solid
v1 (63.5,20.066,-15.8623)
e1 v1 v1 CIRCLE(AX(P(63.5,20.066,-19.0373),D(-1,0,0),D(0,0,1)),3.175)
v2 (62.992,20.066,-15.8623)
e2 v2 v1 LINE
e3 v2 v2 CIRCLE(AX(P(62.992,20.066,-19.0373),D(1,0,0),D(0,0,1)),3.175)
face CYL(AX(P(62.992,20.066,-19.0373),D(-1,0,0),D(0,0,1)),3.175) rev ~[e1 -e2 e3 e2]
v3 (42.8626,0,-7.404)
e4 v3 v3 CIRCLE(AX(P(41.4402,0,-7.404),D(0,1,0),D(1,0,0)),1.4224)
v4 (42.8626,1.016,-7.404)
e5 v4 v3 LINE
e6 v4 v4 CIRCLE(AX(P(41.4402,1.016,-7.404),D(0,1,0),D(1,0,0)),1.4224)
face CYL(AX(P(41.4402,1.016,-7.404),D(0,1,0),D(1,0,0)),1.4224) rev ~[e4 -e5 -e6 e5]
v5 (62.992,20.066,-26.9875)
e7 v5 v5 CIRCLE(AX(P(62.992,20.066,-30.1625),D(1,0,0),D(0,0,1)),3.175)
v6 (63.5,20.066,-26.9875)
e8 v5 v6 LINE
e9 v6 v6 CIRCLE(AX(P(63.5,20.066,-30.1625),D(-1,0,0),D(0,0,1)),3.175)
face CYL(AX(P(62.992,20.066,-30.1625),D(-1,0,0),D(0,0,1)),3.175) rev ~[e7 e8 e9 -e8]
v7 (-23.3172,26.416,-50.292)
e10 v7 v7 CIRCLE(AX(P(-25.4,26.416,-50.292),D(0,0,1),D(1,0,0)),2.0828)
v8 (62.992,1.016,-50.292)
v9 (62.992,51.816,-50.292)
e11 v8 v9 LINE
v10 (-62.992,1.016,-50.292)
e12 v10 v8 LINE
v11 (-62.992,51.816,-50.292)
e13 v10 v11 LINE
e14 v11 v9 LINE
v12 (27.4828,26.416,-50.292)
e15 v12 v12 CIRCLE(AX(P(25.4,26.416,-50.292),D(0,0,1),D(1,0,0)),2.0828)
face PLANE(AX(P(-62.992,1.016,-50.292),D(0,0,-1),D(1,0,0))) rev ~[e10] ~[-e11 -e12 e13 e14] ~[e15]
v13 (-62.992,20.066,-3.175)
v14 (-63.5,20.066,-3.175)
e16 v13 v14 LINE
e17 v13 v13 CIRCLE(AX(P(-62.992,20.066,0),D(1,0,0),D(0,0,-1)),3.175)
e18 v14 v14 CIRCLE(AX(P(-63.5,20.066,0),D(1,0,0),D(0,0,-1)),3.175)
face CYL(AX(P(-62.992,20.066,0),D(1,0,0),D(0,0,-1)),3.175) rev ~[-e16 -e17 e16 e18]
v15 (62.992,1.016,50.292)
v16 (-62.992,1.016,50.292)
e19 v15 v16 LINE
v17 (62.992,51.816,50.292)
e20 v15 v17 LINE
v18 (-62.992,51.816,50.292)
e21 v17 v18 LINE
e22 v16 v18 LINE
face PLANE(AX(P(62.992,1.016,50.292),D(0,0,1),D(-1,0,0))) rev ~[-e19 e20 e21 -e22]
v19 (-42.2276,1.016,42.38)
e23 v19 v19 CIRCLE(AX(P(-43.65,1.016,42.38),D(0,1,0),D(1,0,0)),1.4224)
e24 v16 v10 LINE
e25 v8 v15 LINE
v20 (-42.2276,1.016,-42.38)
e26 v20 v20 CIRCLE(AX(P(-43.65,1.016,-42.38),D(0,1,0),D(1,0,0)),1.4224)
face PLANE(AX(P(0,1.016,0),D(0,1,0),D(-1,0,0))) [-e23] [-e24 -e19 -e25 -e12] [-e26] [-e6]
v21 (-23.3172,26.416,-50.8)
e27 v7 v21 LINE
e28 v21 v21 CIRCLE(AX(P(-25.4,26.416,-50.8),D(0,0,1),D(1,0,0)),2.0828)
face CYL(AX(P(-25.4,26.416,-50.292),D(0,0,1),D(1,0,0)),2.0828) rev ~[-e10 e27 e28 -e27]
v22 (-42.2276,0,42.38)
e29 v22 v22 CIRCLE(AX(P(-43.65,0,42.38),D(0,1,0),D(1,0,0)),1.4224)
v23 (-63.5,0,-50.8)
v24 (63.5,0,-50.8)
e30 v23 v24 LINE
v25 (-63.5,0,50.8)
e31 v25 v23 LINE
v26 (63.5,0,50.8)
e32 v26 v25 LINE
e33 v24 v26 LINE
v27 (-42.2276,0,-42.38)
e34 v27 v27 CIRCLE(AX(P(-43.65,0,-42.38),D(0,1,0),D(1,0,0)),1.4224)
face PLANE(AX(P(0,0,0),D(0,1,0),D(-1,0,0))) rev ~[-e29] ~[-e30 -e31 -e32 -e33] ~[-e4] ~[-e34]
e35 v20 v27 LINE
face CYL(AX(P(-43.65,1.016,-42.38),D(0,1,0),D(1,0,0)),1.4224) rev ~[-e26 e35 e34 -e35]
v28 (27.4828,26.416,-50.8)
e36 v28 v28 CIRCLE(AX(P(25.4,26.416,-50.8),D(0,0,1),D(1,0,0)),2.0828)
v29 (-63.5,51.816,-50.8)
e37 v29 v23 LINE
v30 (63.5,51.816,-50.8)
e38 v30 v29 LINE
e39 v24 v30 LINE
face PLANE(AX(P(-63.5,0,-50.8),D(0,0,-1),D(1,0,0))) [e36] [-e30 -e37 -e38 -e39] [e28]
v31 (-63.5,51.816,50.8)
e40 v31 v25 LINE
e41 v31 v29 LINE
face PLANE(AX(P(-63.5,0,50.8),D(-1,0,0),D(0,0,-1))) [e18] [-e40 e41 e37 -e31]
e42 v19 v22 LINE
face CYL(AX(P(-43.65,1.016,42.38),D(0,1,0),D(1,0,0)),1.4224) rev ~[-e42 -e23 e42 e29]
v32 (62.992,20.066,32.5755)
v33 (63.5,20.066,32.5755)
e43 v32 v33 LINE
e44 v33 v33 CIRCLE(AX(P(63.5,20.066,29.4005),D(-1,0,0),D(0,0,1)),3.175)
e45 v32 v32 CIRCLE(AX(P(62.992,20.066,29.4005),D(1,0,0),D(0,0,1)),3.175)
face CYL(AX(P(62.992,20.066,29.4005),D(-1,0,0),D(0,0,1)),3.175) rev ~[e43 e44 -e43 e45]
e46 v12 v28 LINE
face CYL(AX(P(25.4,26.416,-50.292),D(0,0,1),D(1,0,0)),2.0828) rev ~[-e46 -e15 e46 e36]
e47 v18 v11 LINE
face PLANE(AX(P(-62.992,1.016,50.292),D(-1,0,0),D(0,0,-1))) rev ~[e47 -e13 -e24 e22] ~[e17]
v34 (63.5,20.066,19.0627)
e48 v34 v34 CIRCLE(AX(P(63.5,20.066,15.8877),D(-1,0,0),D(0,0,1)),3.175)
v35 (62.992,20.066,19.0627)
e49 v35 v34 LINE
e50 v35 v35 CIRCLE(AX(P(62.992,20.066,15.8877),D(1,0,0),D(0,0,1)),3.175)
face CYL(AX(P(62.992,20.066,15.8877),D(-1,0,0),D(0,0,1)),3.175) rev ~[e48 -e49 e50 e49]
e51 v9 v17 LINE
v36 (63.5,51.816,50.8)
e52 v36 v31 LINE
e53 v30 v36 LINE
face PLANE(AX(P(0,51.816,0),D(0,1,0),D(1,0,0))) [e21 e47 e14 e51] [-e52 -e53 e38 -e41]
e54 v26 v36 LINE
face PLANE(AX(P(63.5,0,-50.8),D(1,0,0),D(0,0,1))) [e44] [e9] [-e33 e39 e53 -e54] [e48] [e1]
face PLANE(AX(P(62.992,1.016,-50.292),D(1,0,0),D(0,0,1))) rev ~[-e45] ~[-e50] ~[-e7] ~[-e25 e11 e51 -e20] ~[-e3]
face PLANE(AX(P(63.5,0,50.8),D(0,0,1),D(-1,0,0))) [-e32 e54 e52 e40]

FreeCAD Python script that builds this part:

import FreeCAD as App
import Part
import Sketcher
Q = App.Units.Quantity

doc = App.newDocument("Part")
body = doc.addObject("PartDesign::Body", "Body")

sketch1 = body.newObject("Sketcher::SketchObject", "Sketch")
sketch1.AttachmentSupport = (doc.getObject("XZ_Plane"), [""])
sketch1.MapMode = "FlatFace"
sketch1.addGeometry(Part.LineSegment(App.Vector(-64, 51, 0), App.Vector(64, 51, 0)), False)
sketch1.addGeometry(Part.LineSegment(App.Vector(64, 51, 0), App.Vector(64, -51, 0)), False)
sketch1.addGeometry(Part.LineSegment(App.Vector(64, -51, 0), App.Vector(-64, -51, 0)), False)
sketch1.addGeometry(Part.LineSegment(App.Vector(-64, -51, 0), App.Vector(-64, 51, 0)), False)
sketch1.addConstraint(Sketcher.Constraint("Coincident", 0, 2, 1, 1))
sketch1.addConstraint(Sketcher.Constraint("Coincident", 1, 2, 2, 1))
sketch1.addConstraint(Sketcher.Constraint("Coincident", 2, 2, 3, 1))
sketch1.addConstraint(Sketcher.Constraint("Coincident", 3, 2, 0, 1))
sketch1.addConstraint(Sketcher.Constraint("Horizontal", 0))
sketch1.addConstraint(Sketcher.Constraint("Vertical", 1))
sketch1.addConstraint(Sketcher.Constraint("Horizontal", 2))
sketch1.addConstraint(Sketcher.Constraint("Vertical", 3))
sketch1.addConstraint(Sketcher.Constraint("Symmetric", 0, 2, 2, 2, -1, 1))
sketch1.addConstraint(Sketcher.Constraint("DistanceX", 0, 1, 0, 2, Q("5 in")))
sketch1.addConstraint(Sketcher.Constraint("DistanceY", 1, 2, 1, 1, Q("4 in")))
pad1 = body.newObject("PartDesign::Pad", "Pad")
pad1.Profile = sketch1
pad1.Length = Q("0.04 in")
pad1.Reversed = True

sketch2 = body.newObject("Sketcher::SketchObject", "Sketch001")
sketch2.AttachmentSupport = (doc.getObject("XZ_Plane"), [""])
sketch2.MapMode = "FlatFace"
sketch2.AttachmentOffset = App.Placement(App.Vector(0, 0, -0.04 * 25.4), App.Rotation())
sketch2.addGeometry(Part.LineSegment(App.Vector(64, 51, 0), App.Vector(64, -51, 0)), False)
sketch2.addGeometry(Part.LineSegment(App.Vector(64, -51, 0), App.Vector(-64, -51, 0)), False)
sketch2.addGeometry(Part.LineSegment(App.Vector(-64, -51, 0), App.Vector(-64, 51, 0)), False)
sketch2.addGeometry(Part.LineSegment(App.Vector(-64, 51, 0), App.Vector(64, 51, 0)), False)
sketch2.addGeometry(Part.LineSegment(App.Vector(63, -50, 0), App.Vector(63, 50, 0)), False)
sketch2.addGeometry(Part.LineSegment(App.Vector(63, 50, 0), App.Vector(-63, 50, 0)), False)
sketch2.addGeometry(Part.LineSegment(App.Vector(-63, 50, 0), App.Vector(-63, -50, 0)), False)
sketch2.addGeometry(Part.LineSegment(App.Vector(-63, -50, 0), App.Vector(63, -50, 0)), False)
sketch2.addConstraint(Sketcher.Constraint("Coincident", 0, 2, 1, 1))
sketch2.addConstraint(Sketcher.Constraint("Coincident", 1, 2, 2, 1))
sketch2.addConstraint(Sketcher.Constraint("Coincident", 2, 2, 3, 1))
sketch2.addConstraint(Sketcher.Constraint("Coincident", 3, 2, 0, 1))
sketch2.addConstraint(Sketcher.Constraint("Coincident", 4, 2, 5, 1))
sketch2.addConstraint(Sketcher.Constraint("Coincident", 5, 2, 6, 1))
sketch2.addConstraint(Sketcher.Constraint("Coincident", 6, 2, 7, 1))
sketch2.addConstraint(Sketcher.Constraint("Coincident", 7, 2, 4, 1))
sketch2.addConstraint(Sketcher.Constraint("Vertical", 0))
sketch2.addConstraint(Sketcher.Constraint("Horizontal", 1))
sketch2.addConstraint(Sketcher.Constraint("Vertical", 2))
sketch2.addConstraint(Sketcher.Constraint("Horizontal", 3))
sketch2.addConstraint(Sketcher.Constraint("Vertical", 4))
sketch2.addConstraint(Sketcher.Constraint("Horizontal", 5))
sketch2.addConstraint(Sketcher.Constraint("Vertical", 6))
sketch2.addConstraint(Sketcher.Constraint("Horizontal", 7))
sketch2.addConstraint(Sketcher.Constraint("Symmetric", 0, 2, 2, 2, -1, 1))
sketch2.addConstraint(Sketcher.Constraint("Symmetric", 4, 2, 6, 2, -1, 1))
sketch2.addConstraint(Sketcher.Constraint("DistanceX", 5, 2, 5, 1, Q("4.96 in")))
sketch2.addConstraint(Sketcher.Constraint("DistanceY", 4, 1, 4, 2, Q("3.96 in")))
sketch2.addConstraint(Sketcher.Constraint("DistanceX", 1, 2, 1, 1, Q("5 in")))
sketch2.addConstraint(Sketcher.Constraint("DistanceY", 0, 2, 0, 1, Q("4 in")))
pad2 = body.newObject("PartDesign::Pad", "Pad001")
pad2.Profile = sketch2
pad2.Length = Q("2 in")
pad2.Reversed = True

sketch3 = body.newObject("Sketcher::SketchObject", "Sketch002")
sketch3.AttachmentSupport = (doc.getObject("XY_Plane"), [""])
sketch3.MapMode = "FlatFace"
sketch3.AttachmentOffset = App.Placement(App.Vector(0, 0, -1.98 * 25.4), App.Rotation())
sketch3.addGeometry(Part.Circle(App.Vector(-25.4, 26.4, 0), App.Vector(0, 0, 1), 2.1), False)
sketch3.addGeometry(Part.Circle(App.Vector(25.4, 26.4, 0), App.Vector(0, 0, 1), 2.1), False)
sketch3.addConstraint(Sketcher.Constraint("Equal", 0, 1))
sketch3.addConstraint(Sketcher.Constraint("Symmetric", 0, 3, 1, 3, -2))
sketch3.addConstraint(Sketcher.Constraint("Diameter", 0, Q("0.164 in")))
sketch3.addConstraint(Sketcher.Constraint("DistanceX", 0, 3, -1, 1, Q("1 in")))
sketch3.addConstraint(Sketcher.Constraint("DistanceY", -1, 1, 0, 3, Q("1.04 in")))
pocket1 = body.newObject("PartDesign::Pocket", "Pocket")
pocket1.Profile = sketch3
pocket1.Type = "ThroughAll"

sketch4 = body.newObject("Sketcher::SketchObject", "Sketch003")
sketch4.AttachmentSupport = (doc.getObject("XZ_Plane"), [""])
sketch4.MapMode = "FlatFace"
sketch4.AttachmentOffset = App.Placement(App.Vector(0, 0, -0.04 * 25.4), App.Rotation())
sketch4.addGeometry(Part.Circle(App.Vector(-43.6, 42.4, 0), App.Vector(0, 0, 1), 1.4), False)
sketch4.addGeometry(Part.Circle(App.Vector(-43.6, -42.4, 0), App.Vector(0, 0, 1), 1.4), False)
sketch4.addGeometry(Part.Circle(App.Vector(41.4, -7.4, 0), App.Vector(0, 0, 1), 1.4), False)
sketch4.addConstraint(Sketcher.Constraint("Equal", 0, 1))
sketch4.addConstraint(Sketcher.Constraint("Equal", 1, 2))
sketch4.addConstraint(Sketcher.Constraint("Symmetric", 0, 3, 1, 3, -1))
sketch4.addConstraint(Sketcher.Constraint("Diameter", 0, Q("0.112 in")))
sketch4.addConstraint(Sketcher.Constraint("DistanceX", 1, 3, 2, 3, Q("3.35 in")))
sketch4.addConstraint(Sketcher.Constraint("DistanceY", 2, 3, 0, 3, Q("1.96 in")))
sketch4.addConstraint(Sketcher.Constraint("DistanceY", 1, 3, 0, 3, Q("3.337 in")))
sketch4.addConstraint(Sketcher.Constraint("DistanceX", 0, 3, -1, 1, Q("1.7185 in")))
pocket2 = body.newObject("PartDesign::Pocket", "Pocket001")
pocket2.Profile = sketch4
pocket2.Type = "ThroughAll"
pocket2.Reversed = True

sketch5 = body.newObject("Sketcher::SketchObject", "Sketch004")
sketch5.AttachmentSupport = (doc.getObject("YZ_Plane"), [""])
sketch5.MapMode = "FlatFace"
sketch5.AttachmentOffset = App.Placement(App.Vector(0, 0, -2.48 * 25.4), App.Rotation())
sketch5.addGeometry(Part.Circle(App.Vector(20.1, 0, 0), App.Vector(0, 0, 1), 3.2), False)
sketch5.addConstraint(Sketcher.Constraint("PointOnObject", 0, 3, -1))
sketch5.addConstraint(Sketcher.Constraint("Diameter", 0, Q("0.25 in")))
sketch5.addConstraint(Sketcher.Constraint("DistanceX", -1, 1, 0, 3, Q("0.79 in")))
pocket3 = body.newObject("PartDesign::Pocket", "Pocket002")
pocket3.Profile = sketch5
pocket3.Type = "ThroughAll"

sketch6 = body.newObject("Sketcher::SketchObject", "Sketch005")
sketch6.AttachmentSupport = (doc.getObject("YZ_Plane"), [""])
sketch6.MapMode = "FlatFace"
sketch6.AttachmentOffset = App.Placement(App.Vector(0, 0, 2.48 * 25.4), App.Rotation())
sketch6.addGeometry(Part.Circle(App.Vector(20.1, -30.2, 0), App.Vector(0, 0, 1), 3.2), False)
sketch6.addGeometry(Part.Circle(App.Vector(20.1, 29.4, 0), App.Vector(0, 0, 1), 3.2), False)
sketch6.addGeometry(Part.Circle(App.Vector(20.1, 15.9, 0), App.Vector(0, 0, 1), 3.2), False)
sketch6.addGeometry(Part.Circle(App.Vector(20.1, -19, 0), App.Vector(0, 0, 1), 3.2), False)
sketch6.addConstraint(Sketcher.Constraint("Equal", 0, 1))
sketch6.addConstraint(Sketcher.Constraint("Equal", 1, 2))
sketch6.addConstraint(Sketcher.Constraint("Equal", 2, 3))
sketch6.addConstraint(Sketcher.Constraint("Vertical", 0, 3, 1, 3))
sketch6.addConstraint(Sketcher.Constraint("Vertical", 1, 3, 2, 3))
sketch6.addConstraint(Sketcher.Constraint("Vertical", 2, 3, 3, 3))
sketch6.addConstraint(Sketcher.Constraint("Diameter", 0, Q("0.25 in")))
sketch6.addConstraint(Sketcher.Constraint("DistanceY", 2, 3, 1, 3, Q("0.532 in")))
sketch6.addConstraint(Sketcher.Constraint("DistanceY", 0, 3, 3, 3, Q("0.438 in")))
sketch6.addConstraint(Sketcher.Constraint("DistanceY", 3, 3, 2, 3, Q("1.375 in")))
sketch6.addConstraint(Sketcher.Constraint("DistanceX", -1, 1, 0, 3, Q("0.79 in")))
sketch6.addConstraint(Sketcher.Constraint("DistanceY", 0, 3, -1, 1, Q("1.1875 in")))
pocket4 = body.newObject("PartDesign::Pocket", "Pocket003")
pocket4.Profile = sketch6
pocket4.Type = "ThroughAll"
pocket4.Reversed = True

doc.recompute()
